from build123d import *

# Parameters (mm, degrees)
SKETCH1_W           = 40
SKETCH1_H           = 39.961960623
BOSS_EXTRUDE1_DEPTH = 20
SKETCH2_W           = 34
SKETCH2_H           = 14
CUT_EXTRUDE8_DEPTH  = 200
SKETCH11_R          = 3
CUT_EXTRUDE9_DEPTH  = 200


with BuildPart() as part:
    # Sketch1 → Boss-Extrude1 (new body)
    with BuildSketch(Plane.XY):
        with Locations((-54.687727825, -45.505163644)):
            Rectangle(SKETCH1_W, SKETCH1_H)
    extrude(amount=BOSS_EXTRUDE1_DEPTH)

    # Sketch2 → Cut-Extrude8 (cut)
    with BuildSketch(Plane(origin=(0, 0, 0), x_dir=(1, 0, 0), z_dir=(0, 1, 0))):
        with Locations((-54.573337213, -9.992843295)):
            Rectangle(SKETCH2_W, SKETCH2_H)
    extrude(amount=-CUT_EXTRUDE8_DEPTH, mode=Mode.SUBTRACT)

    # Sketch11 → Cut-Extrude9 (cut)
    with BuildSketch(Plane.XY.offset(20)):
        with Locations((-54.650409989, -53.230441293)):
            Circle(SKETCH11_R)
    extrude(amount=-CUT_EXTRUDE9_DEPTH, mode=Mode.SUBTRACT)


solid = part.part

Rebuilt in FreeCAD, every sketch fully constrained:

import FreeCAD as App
import Part
import Sketcher

V = App.Vector
Q = App.Units.Quantity


def add_polygon(sketch, points):
    """Adds a closed chain of lines whose ends are joined by coincident constraints."""
    first, n = sketch.GeometryCount, len(points)
    for a, b in zip(points, points[1:] + points[:1]):
        sketch.addGeometry(Part.LineSegment(App.Vector(*a, 0), App.Vector(*b, 0)), False)
    for i in range(n):
        sketch.addConstraint(Sketcher.Constraint("Coincident", first + i, 2, first + (i + 1) % n, 1))

doc = App.newDocument("Part")
params = doc.addObject("Spreadsheet::Sheet", "Params")
for row, (alias, value) in enumerate([
    ("sketch1_width", "40 mm"),
    ("pad1_length", "20 mm"),
    ("sketch2_width", "34 mm"),
    ("sketch2_height", "14 mm"),
    ("pocket1_length", "200 mm"),
    ("sketch3_diameter", "6 mm"),
    ("pocket2_length", "200 mm"),
], start=1):
    params.set(f"A{row}", alias)
    params.set(f"B{row}", "=" + value)
    params.setAlias(f"B{row}", alias)

body = doc.addObject("PartDesign::Body", "Body")

# Sketch on XY plane
sketch1 = doc.addObject("Sketcher::SketchObject", "Sketch")
body.addObject(sketch1)
sketch1.AttachmentSupport = (doc.XY_Plane, [""])
sketch1.MapMode = "FlatFace"
add_polygon(sketch1, [(-74.687728, -25.524183), (-74.687728, -65.486144), (-34.687728, -65.486144), (-34.687728, -25.524183)])  # lines 0-3
sketch1.addConstraint([
    Sketcher.Constraint("Vertical", 0),
    Sketcher.Constraint("Horizontal", 1),
    Sketcher.Constraint("Vertical", 2),
    Sketcher.Constraint("Horizontal", 3),
    Sketcher.Constraint("DistanceX", 1, 1, 1, 2, Q("40 mm")),
    Sketcher.Constraint("DistanceY", 0, 2, 0, 1, Q("39.961961 mm")),
    Sketcher.Constraint("DistanceX", 0, 2, -1, 1, Q("74.687728 mm")),
    Sketcher.Constraint("DistanceY", 0, 2, -1, 1, Q("65.486144 mm")),
])
sketch1.setExpression("Constraints[8]", "Params.sketch1_width")
pad1 = doc.addObject("PartDesign::Pad", "Pad")
body.addObject(pad1)
pad1.Profile = sketch1
pad1.setExpression("Length", "Params.pad1_length")

# Sketch on XZ plane
sketch2 = doc.addObject("Sketcher::SketchObject", "Sketch001")
body.addObject(sketch2)
sketch2.AttachmentSupport = (doc.XZ_Plane, [""])
sketch2.MapMode = "FlatFace"
add_polygon(sketch2, [(-71.573337, 2.992843), (-71.573337, 16.992843), (-37.573337, 16.992843), (-37.573337, 2.992843)])  # lines 0-3
sketch2.addConstraint([
    Sketcher.Constraint("Vertical", 0),
    Sketcher.Constraint("Horizontal", 1),
    Sketcher.Constraint("Vertical", 2),
    Sketcher.Constraint("Horizontal", 3),
    Sketcher.Constraint("DistanceX", 1, 1, 1, 2, Q("34 mm")),
    Sketcher.Constraint("DistanceY", 0, 1, 0, 2, Q("14 mm")),
    Sketcher.Constraint("DistanceX", 0, 2, -1, 1, Q("71.573337 mm")),
    Sketcher.Constraint("DistanceY", -1, 1, 0, 2, Q("16.992843 mm")),
])
sketch2.setExpression("Constraints[8]", "Params.sketch2_width")
sketch2.setExpression("Constraints[9]", "Params.sketch2_height")
pocket1 = doc.addObject("PartDesign::Pocket", "Pocket")
body.addObject(pocket1)
pocket1.Profile = sketch2
pocket1.setExpression("Length", "Params.pocket1_length")
pocket1.Reversed = True

# Sketch on XY plane
sketch3 = doc.addObject("Sketcher::SketchObject", "Sketch002")
body.addObject(sketch3)
sketch3.AttachmentSupport = (doc.XY_Plane, [""])
sketch3.MapMode = "FlatFace"
sketch3.AttachmentOffset = App.Placement(V(0, 0, 20), App.Rotation())
sketch3.addGeometry(Part.Circle(V(-54.65041, -53.230441, 0), V(0, 0, 1), 3), False)
sketch3.addConstraint([
    Sketcher.Constraint("Diameter", 0, Q("6 mm")),
    Sketcher.Constraint("DistanceX", 0, 3, -1, 1, Q("54.65041 mm")),
    Sketcher.Constraint("DistanceY", 0, 3, -1, 1, Q("53.230441 mm")),
])
sketch3.setExpression("Constraints[0]", "Params.sketch3_diameter")
pocket2 = doc.addObject("PartDesign::Pocket", "Pocket001")
body.addObject(pocket2)
pocket2.Profile = sketch3
pocket2.setExpression("Length", "Params.pocket2_length")

doc.recompute()
